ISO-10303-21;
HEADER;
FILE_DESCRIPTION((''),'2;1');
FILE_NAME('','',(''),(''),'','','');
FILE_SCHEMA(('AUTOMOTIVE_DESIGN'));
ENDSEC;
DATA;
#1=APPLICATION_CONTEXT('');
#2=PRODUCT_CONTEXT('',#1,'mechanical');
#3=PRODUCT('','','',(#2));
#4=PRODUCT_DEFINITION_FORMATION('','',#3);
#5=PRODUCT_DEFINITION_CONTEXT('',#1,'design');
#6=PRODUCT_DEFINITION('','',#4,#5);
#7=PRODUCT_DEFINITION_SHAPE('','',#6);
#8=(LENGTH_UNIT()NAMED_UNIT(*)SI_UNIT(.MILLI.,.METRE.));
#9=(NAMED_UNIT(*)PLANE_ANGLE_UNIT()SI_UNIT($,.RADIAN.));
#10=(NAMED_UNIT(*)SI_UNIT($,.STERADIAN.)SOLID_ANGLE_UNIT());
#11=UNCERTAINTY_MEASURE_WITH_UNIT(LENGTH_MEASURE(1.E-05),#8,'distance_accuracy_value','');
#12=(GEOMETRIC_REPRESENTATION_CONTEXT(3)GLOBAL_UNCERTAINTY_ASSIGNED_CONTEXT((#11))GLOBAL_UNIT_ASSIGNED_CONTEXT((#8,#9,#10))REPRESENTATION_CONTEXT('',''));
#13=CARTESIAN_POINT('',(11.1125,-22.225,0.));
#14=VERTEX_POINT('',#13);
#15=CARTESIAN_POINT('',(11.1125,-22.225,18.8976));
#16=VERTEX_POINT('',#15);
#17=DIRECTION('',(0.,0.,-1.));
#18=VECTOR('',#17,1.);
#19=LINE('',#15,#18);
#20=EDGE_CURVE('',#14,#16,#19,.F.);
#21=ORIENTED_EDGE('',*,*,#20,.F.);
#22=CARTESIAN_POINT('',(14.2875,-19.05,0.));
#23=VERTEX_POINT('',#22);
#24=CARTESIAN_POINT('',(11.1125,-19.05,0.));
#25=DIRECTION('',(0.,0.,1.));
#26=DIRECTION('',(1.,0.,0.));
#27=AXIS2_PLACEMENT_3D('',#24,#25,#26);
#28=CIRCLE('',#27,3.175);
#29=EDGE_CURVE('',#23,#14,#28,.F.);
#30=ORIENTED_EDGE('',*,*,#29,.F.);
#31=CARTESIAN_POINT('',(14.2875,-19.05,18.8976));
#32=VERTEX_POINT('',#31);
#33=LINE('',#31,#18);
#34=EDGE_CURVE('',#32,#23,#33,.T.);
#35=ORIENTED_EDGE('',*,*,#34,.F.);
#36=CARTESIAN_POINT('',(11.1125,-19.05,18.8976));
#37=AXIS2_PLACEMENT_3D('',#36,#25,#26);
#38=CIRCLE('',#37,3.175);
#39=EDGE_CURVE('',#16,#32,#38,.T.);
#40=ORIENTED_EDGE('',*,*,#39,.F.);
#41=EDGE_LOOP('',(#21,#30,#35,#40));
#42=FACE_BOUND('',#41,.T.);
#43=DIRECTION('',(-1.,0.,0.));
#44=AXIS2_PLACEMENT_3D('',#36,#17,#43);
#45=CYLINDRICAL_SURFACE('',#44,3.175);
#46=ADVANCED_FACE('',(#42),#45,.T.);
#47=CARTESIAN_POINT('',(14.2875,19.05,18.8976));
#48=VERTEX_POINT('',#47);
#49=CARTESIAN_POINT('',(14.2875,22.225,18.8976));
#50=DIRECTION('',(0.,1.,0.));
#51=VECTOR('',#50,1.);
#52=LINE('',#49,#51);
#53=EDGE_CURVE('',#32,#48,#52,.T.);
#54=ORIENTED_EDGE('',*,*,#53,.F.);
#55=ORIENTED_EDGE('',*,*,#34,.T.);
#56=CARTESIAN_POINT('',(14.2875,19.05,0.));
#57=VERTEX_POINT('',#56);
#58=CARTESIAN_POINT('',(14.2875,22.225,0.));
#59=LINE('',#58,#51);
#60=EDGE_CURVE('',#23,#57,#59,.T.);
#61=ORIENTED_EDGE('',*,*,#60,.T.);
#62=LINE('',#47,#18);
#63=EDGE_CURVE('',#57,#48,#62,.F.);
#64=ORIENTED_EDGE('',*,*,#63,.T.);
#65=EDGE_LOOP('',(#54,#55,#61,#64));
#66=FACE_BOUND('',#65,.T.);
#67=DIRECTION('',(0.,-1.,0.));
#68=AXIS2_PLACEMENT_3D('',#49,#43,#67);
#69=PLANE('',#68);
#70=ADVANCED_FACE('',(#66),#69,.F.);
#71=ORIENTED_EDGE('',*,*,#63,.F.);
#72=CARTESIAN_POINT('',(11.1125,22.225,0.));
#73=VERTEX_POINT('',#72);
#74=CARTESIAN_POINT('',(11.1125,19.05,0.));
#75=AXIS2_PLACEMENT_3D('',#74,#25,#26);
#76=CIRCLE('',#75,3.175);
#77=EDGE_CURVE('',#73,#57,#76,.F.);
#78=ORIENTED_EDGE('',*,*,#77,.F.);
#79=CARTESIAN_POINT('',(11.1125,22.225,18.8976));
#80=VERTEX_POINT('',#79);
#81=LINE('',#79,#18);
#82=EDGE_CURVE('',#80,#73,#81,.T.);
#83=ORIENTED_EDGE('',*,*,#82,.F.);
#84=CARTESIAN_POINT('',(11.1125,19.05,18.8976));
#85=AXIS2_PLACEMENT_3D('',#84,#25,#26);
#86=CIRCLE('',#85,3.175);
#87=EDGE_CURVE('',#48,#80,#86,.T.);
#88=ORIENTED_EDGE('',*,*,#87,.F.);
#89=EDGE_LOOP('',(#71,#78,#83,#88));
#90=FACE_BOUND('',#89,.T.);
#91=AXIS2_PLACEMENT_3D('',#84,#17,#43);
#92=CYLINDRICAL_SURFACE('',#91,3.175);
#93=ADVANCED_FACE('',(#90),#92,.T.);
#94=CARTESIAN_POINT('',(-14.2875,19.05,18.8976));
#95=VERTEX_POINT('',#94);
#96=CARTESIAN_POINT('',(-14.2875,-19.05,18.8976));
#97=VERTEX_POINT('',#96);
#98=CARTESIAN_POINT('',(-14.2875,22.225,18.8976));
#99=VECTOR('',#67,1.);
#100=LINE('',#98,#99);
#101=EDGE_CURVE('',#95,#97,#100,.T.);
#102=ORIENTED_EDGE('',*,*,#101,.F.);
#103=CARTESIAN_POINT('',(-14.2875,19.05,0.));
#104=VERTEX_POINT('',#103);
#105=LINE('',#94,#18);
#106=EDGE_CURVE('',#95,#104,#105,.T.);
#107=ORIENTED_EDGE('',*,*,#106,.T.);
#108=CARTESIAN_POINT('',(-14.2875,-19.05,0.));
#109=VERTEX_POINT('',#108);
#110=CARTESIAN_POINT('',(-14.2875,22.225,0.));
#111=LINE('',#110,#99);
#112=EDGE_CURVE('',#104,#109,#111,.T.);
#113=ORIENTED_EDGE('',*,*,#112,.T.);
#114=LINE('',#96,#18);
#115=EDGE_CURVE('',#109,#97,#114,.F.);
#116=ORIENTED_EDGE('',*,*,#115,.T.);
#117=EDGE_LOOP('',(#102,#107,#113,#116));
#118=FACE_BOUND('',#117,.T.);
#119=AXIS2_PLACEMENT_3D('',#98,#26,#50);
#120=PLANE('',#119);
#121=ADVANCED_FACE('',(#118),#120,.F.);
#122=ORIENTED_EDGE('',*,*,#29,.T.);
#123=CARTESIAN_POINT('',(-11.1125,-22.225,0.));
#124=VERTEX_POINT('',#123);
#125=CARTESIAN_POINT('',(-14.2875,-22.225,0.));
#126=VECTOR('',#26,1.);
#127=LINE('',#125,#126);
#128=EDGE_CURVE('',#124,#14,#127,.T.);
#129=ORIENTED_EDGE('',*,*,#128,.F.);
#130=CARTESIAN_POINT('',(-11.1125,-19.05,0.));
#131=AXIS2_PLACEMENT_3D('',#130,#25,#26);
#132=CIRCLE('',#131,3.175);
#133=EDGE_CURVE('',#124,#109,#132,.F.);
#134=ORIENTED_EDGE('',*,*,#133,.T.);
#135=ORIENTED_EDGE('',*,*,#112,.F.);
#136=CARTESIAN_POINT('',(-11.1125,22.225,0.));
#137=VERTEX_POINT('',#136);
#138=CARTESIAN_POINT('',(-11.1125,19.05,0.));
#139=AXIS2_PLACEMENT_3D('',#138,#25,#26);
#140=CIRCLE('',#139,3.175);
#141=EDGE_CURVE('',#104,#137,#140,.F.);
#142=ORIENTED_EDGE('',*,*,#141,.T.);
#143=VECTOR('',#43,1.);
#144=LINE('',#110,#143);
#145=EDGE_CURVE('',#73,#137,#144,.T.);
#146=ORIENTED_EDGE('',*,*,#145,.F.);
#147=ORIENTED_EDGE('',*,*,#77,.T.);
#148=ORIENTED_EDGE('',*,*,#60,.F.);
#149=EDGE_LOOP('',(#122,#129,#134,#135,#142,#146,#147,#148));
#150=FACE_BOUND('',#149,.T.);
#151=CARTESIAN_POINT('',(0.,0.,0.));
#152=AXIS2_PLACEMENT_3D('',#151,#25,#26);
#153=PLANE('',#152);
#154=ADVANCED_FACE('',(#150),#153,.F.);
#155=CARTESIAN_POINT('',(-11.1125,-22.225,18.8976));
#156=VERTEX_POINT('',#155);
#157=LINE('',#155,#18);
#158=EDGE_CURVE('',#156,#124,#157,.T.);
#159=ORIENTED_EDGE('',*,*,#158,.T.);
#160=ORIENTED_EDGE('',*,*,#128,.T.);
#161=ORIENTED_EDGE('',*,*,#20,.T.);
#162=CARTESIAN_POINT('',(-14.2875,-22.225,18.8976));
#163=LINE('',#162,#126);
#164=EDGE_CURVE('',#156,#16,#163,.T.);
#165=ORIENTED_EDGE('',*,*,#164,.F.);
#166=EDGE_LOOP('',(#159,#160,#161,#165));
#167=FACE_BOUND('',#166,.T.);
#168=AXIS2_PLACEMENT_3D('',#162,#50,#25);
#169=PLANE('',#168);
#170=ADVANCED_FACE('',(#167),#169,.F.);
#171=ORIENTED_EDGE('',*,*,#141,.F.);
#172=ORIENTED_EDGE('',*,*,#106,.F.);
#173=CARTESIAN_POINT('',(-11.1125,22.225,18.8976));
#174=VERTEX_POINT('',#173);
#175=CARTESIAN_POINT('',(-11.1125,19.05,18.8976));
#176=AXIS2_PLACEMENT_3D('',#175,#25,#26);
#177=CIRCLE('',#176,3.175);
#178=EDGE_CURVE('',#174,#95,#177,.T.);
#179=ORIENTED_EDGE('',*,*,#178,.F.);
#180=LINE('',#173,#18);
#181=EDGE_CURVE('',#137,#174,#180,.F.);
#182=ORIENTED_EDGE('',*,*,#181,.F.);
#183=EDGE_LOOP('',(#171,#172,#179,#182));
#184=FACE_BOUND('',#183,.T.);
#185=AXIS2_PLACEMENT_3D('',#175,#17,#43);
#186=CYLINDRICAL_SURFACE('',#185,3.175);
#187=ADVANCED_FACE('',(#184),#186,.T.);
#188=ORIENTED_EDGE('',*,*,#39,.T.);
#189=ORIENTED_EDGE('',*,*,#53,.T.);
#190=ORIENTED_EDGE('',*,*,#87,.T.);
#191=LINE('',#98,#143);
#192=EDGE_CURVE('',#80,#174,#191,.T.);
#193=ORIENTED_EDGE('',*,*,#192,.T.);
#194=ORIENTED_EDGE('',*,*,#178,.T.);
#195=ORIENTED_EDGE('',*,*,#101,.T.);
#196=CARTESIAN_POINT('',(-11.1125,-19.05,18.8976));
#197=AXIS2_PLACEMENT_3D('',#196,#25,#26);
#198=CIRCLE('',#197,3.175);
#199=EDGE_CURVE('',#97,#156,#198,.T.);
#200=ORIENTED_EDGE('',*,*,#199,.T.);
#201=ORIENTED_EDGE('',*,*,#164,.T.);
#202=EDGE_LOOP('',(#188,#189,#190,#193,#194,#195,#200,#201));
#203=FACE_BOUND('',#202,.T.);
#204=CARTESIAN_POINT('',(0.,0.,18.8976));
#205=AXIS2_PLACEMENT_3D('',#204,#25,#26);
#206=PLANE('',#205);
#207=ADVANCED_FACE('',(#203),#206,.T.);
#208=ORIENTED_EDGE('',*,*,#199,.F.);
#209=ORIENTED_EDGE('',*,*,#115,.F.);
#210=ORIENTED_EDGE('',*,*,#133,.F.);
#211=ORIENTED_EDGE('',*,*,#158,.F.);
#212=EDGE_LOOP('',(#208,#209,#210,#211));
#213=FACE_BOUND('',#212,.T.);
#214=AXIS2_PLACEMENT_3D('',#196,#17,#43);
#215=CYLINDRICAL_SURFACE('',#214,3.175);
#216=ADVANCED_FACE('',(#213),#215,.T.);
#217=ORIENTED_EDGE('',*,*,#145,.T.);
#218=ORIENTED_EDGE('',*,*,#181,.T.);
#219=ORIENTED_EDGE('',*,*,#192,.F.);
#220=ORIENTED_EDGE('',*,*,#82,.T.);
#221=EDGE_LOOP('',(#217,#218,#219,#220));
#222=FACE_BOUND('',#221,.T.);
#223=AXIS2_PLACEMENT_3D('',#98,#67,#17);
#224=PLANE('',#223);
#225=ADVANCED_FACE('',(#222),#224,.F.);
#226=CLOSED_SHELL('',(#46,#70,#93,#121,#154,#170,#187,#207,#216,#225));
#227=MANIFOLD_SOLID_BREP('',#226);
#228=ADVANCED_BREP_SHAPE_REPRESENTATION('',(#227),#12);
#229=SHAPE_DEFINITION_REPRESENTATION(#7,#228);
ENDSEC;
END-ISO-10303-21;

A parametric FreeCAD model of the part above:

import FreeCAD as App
import Part
import Sketcher
Q = App.Units.Quantity


def edges_at(feature, points):
    """Names of the edges that pass closest to the given points."""
    edges = feature.Shape.Edges
    near = lambda p: min(range(len(edges)), key=lambda i: edges[i].distToShape(Part.Vertex(*p))[0])
    return sorted({f"Edge{near(p) + 1}" for p in points})

doc = App.newDocument("Part")
body = doc.addObject("PartDesign::Body", "Body")

# Sketch on XY plane
sketch1 = body.newObject("Sketcher::SketchObject", "Sketch")
sketch1.AttachmentSupport = (doc.getObject("XY_Plane"), [""])
sketch1.MapMode = "FlatFace"
sketch1.addGeometry(Part.LineSegment(App.Vector(-14.2875, 22.225, 0), App.Vector(-14.2875, -22.225, 0)), False)
sketch1.addGeometry(Part.LineSegment(App.Vector(-14.2875, -22.225, 0), App.Vector(14.2875, -22.225, 0)), False)
sketch1.addGeometry(Part.LineSegment(App.Vector(14.2875, -22.225, 0), App.Vector(14.2875, 22.225, 0)), False)
sketch1.addGeometry(Part.LineSegment(App.Vector(14.2875, 22.225, 0), App.Vector(-14.2875, 22.225, 0)), False)
sketch1.addConstraint(Sketcher.Constraint("Coincident", 0, 2, 1, 1))
sketch1.addConstraint(Sketcher.Constraint("Coincident", 1, 2, 2, 1))
sketch1.addConstraint(Sketcher.Constraint("Coincident", 2, 2, 3, 1))
sketch1.addConstraint(Sketcher.Constraint("Coincident", 3, 2, 0, 1))
sketch1.addConstraint(Sketcher.Constraint("Vertical", 0))
sketch1.addConstraint(Sketcher.Constraint("Horizontal", 1))
sketch1.addConstraint(Sketcher.Constraint("Vertical", 2))
sketch1.addConstraint(Sketcher.Constraint("Horizontal", 3))
sketch1.addConstraint(Sketcher.Constraint("Symmetric", 0, 2, 2, 2, -1, 1))
sketch1.addConstraint(Sketcher.Constraint("DistanceY", 0, 2, 0, 1, Q("1.75 in")))
sketch1.addConstraint(Sketcher.Constraint("DistanceX", 1, 1, 1, 2, Q("1.125 in")))
pad1 = body.newObject("PartDesign::Pad", "Pad")
pad1.Profile = sketch1
pad1.Length = Q("0.744 in")
doc.recompute()

fillet = body.newObject("PartDesign::Fillet", "Fillet")
fillet.Base = (pad1, edges_at(pad1, [
    (14.287, -22.225, 9.449),
    (-14.287, -22.225, 9.449),
    (-14.287, 22.225, 9.449),
    (14.287, 22.225, 9.449),
]))
fillet.Radius = Q("0.125 in")

doc.recompute()
